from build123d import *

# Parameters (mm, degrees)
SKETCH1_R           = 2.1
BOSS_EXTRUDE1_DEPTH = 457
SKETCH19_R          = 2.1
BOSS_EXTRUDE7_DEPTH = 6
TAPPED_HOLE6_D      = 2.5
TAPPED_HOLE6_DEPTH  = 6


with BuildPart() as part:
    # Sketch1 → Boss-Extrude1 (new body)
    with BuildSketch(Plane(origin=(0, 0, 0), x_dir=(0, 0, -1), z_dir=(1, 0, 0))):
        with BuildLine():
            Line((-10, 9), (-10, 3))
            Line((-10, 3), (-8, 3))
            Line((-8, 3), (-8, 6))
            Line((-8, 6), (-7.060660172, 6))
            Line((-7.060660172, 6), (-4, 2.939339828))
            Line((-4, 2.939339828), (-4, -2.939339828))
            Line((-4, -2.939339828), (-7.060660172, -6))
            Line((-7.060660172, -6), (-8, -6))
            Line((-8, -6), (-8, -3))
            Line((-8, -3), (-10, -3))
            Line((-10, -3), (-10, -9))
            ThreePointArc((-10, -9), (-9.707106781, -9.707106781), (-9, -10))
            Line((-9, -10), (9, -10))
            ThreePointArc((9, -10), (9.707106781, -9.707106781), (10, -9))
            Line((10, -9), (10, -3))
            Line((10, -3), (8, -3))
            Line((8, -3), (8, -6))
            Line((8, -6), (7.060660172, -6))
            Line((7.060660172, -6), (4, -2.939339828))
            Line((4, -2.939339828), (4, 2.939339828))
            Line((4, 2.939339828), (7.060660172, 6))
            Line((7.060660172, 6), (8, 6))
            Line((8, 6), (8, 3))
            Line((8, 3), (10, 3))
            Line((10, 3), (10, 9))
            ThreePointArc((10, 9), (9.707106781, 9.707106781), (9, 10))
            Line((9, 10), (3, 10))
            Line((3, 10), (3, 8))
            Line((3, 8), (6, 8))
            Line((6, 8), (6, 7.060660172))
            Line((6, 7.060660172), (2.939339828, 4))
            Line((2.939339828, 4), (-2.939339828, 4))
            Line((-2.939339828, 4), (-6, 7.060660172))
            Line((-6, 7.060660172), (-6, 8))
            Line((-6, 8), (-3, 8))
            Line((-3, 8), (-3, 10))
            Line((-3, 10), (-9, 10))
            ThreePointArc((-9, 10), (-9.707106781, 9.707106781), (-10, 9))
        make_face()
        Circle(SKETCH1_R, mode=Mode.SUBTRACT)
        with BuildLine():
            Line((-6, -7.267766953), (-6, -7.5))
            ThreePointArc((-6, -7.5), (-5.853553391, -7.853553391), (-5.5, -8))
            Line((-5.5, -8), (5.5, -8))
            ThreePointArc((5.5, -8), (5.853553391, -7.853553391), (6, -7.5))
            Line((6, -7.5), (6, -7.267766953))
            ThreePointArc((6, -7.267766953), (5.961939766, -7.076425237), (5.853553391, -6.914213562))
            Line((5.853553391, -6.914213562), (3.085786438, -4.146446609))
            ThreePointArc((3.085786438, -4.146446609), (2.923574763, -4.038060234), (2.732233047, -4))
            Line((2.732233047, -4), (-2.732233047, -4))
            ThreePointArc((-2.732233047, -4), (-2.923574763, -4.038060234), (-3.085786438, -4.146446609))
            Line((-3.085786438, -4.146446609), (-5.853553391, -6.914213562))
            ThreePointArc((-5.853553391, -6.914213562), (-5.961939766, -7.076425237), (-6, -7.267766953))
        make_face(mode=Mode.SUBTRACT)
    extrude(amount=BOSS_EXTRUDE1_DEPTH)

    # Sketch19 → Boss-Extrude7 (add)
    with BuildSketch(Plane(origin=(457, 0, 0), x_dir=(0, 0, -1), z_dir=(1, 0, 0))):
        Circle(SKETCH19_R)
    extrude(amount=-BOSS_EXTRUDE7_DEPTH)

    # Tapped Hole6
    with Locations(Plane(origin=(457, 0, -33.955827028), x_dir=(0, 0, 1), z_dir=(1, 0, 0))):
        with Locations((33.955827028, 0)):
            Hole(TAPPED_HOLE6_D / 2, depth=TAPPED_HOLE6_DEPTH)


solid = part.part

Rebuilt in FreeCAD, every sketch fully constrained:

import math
import FreeCAD as App
import Part
import Sketcher

V = App.Vector
Q = App.Units.Quantity

doc = App.newDocument("Part")
params = doc.addObject("Spreadsheet::Sheet", "Params")
for row, (alias, value) in enumerate([
    ("sketch1_radius", "1 mm"),
    ("sketch1_diameter", "4.2 mm"),
    ("sketch1_radius2", "0.5 mm"),
    ("sketch1_width", "6 mm"),
    ("sketch1_width2", "3 mm"),
    ("pad1_length", "457 mm"),
    ("sketch2_diameter", "4.2 mm"),
    ("pad2_length", "6 mm"),
    ("sketch3_diameter", "2.5 mm"),
    ("hole_diameter", "2.5 mm"),
    ("hole_depth", "6 mm"),
], start=1):
    params.set(f"A{row}", alias)
    params.set(f"B{row}", "=" + value)
    params.setAlias(f"B{row}", alias)

body = doc.addObject("PartDesign::Body", "Body")

# Sketch on YZ plane
sketch1 = body.newObject("Sketcher::SketchObject", "Sketch")
sketch1.AttachmentSupport = (doc.getObject("YZ_Plane"), [""])
sketch1.MapMode = "FlatFace"
sketch1.addGeometry(Part.LineSegment(V(9, 10, 0), V(3, 10, 0)), False)
sketch1.addGeometry(Part.LineSegment(V(3, 10, 0), V(3, 8, 0)), False)
sketch1.addGeometry(Part.LineSegment(V(3, 8, 0), V(6, 8, 0)), False)
sketch1.addGeometry(Part.LineSegment(V(6, 8, 0), V(6, 7.06, 0)), False)
sketch1.addGeometry(Part.LineSegment(V(6, 7.06, 0), V(2.94, 4, 0)), False)
sketch1.addGeometry(Part.LineSegment(V(2.94, 4, 0), V(-2.94, 4, 0)), False)
sketch1.addGeometry(Part.LineSegment(V(-2.94, 4, 0), V(-6, 7.06, 0)), False)
sketch1.addGeometry(Part.LineSegment(V(-6, 7.06, 0), V(-6, 8, 0)), False)
sketch1.addGeometry(Part.LineSegment(V(-6, 8, 0), V(-3, 8, 0)), False)
sketch1.addGeometry(Part.LineSegment(V(-3, 8, 0), V(-3, 10, 0)), False)
sketch1.addGeometry(Part.LineSegment(V(-3, 10, 0), V(-9, 10, 0)), False)
sketch1.addGeometry(Part.ArcOfCircle(Part.Circle(V(-9, 9, 0), V(0, 0, 1), 1), math.radians(90), math.radians(180)), False)
sketch1.addGeometry(Part.LineSegment(V(-10, 9, 0), V(-10, -9, 0)), False)
sketch1.addGeometry(Part.ArcOfCircle(Part.Circle(V(-9, -9, 0), V(0, 0, 1), 1), math.radians(-180), math.radians(-90)), False)
sketch1.addGeometry(Part.LineSegment(V(-9, -10, 0), V(-3, -10, 0)), False)
sketch1.addGeometry(Part.LineSegment(V(-3, -10, 0), V(-3, -8, 0)), False)
sketch1.addGeometry(Part.LineSegment(V(-3, -8, 0), V(-6, -8, 0)), False)
sketch1.addGeometry(Part.LineSegment(V(-6, -8, 0), V(-6, -7.06, 0)), False)
sketch1.addGeometry(Part.LineSegment(V(-6, -7.06, 0), V(-2.94, -4, 0)), False)
sketch1.addGeometry(Part.LineSegment(V(-2.94, -4, 0), V(2.94, -4, 0)), False)
sketch1.addGeometry(Part.LineSegment(V(2.94, -4, 0), V(6, -7.06, 0)), False)
sketch1.addGeometry(Part.LineSegment(V(6, -7.06, 0), V(6, -8, 0)), False)
sketch1.addGeometry(Part.LineSegment(V(6, -8, 0), V(3, -8, 0)), False)
sketch1.addGeometry(Part.LineSegment(V(3, -8, 0), V(3, -10, 0)), False)
sketch1.addGeometry(Part.LineSegment(V(3, -10, 0), V(9, -10, 0)), False)
sketch1.addGeometry(Part.ArcOfCircle(Part.Circle(V(9, -9, 0), V(0, 0, 1), 1), math.radians(-90), math.radians(0)), False)
sketch1.addGeometry(Part.LineSegment(V(10, -9, 0), V(10, -3, 0)), False)
sketch1.addGeometry(Part.LineSegment(V(10, -3, 0), V(8, -3, 0)), False)
sketch1.addGeometry(Part.LineSegment(V(8, -3, 0), V(8, -6, 0)), False)
sketch1.addGeometry(Part.LineSegment(V(8, -6, 0), V(7.06, -6, 0)), False)
sketch1.addGeometry(Part.LineSegment(V(7.06, -6, 0), V(4, -2.94, 0)), False)
sketch1.addGeometry(Part.LineSegment(V(4, -2.94, 0), V(4, 2.94, 0)), False)
sketch1.addGeometry(Part.LineSegment(V(4, 2.94, 0), V(7.06, 6, 0)), False)
sketch1.addGeometry(Part.LineSegment(V(7.06, 6, 0), V(8, 6, 0)), False)
sketch1.addGeometry(Part.LineSegment(V(8, 6, 0), V(8, 3, 0)), False)
sketch1.addGeometry(Part.LineSegment(V(8, 3, 0), V(10, 3, 0)), False)
sketch1.addGeometry(Part.LineSegment(V(10, 3, 0), V(10, 9, 0)), False)
sketch1.addGeometry(Part.ArcOfCircle(Part.Circle(V(9, 9, 0), V(0, 0, 1), 1), math.radians(0), math.radians(90)), False)
sketch1.addGeometry(Part.LineSegment(V(-7.5, 6, 0), V(-7.27, 6, 0)), False)
sketch1.addGeometry(Part.ArcOfCircle(Part.Circle(V(-7.27, 5.5, 0), V(0, 0, 1), 0.5), math.radians(45), math.radians(90)), False)
sketch1.addGeometry(Part.LineSegment(V(-6.91, 5.85, 0), V(-4.15, 3.09, 0)), False)
sketch1.addGeometry(Part.ArcOfCircle(Part.Circle(V(-4.5, 2.73, 0), V(0, 0, 1), 0.5), math.radians(0), math.radians(45)), False)
sketch1.addGeometry(Part.LineSegment(V(-4, 2.73, 0), V(-4, -2.73, 0)), False)
sketch1.addGeometry(Part.ArcOfCircle(Part.Circle(V(-4.5, -2.73, 0), V(0, 0, 1), 0.5), math.radians(-45), math.radians(0)), False)
sketch1.addGeometry(Part.LineSegment(V(-4.15, -3.09, 0), V(-6.91, -5.85, 0)), False)
sketch1.addGeometry(Part.ArcOfCircle(Part.Circle(V(-7.27, -5.5, 0), V(0, 0, 1), 0.5), math.radians(-90), math.radians(-45)), False)
sketch1.addGeometry(Part.LineSegment(V(-7.27, -6, 0), V(-7.5, -6, 0)), False)
sketch1.addGeometry(Part.ArcOfCircle(Part.Circle(V(-7.5, -5.5, 0), V(0, 0, 1), 0.5), math.radians(180), math.radians(270)), False)
sketch1.addGeometry(Part.LineSegment(V(-8, -5.5, 0), V(-8, 5.5, 0)), False)
sketch1.addGeometry(Part.ArcOfCircle(Part.Circle(V(-7.5, 5.5, 0), V(0, 0, 1), 0.5), math.radians(90), math.radians(180)), False)
sketch1.addGeometry(Part.Circle(V(0, 0, 0), V(0, 0, 1), 2.1), False)
sketch1.addConstraint(Sketcher.Constraint("Coincident", 0, 2, 1, 1))
sketch1.addConstraint(Sketcher.Constraint("Coincident", 1, 2, 2, 1))
sketch1.addConstraint(Sketcher.Constraint("Coincident", 2, 2, 3, 1))
sketch1.addConstraint(Sketcher.Constraint("Coincident", 3, 2, 4, 1))
sketch1.addConstraint(Sketcher.Constraint("Coincident", 4, 2, 5, 1))
sketch1.addConstraint(Sketcher.Constraint("Coincident", 5, 2, 6, 1))
sketch1.addConstraint(Sketcher.Constraint("Coincident", 6, 2, 7, 1))
sketch1.addConstraint(Sketcher.Constraint("Coincident", 7, 2, 8, 1))
sketch1.addConstraint(Sketcher.Constraint("Coincident", 8, 2, 9, 1))
sketch1.addConstraint(Sketcher.Constraint("Coincident", 9, 2, 10, 1))
sketch1.addConstraint(Sketcher.Constraint("Tangent", 10, 2, 11, 1))
sketch1.addConstraint(Sketcher.Constraint("Tangent", 11, 2, 12, 1))
sketch1.addConstraint(Sketcher.Constraint("Tangent", 12, 2, 13, 1))
sketch1.addConstraint(Sketcher.Constraint("Tangent", 13, 2, 14, 1))
sketch1.addConstraint(Sketcher.Constraint("Coincident", 14, 2, 15, 1))
sketch1.addConstraint(Sketcher.Constraint("Coincident", 15, 2, 16, 1))
sketch1.addConstraint(Sketcher.Constraint("Coincident", 16, 2, 17, 1))
sketch1.addConstraint(Sketcher.Constraint("Coincident", 17, 2, 18, 1))
sketch1.addConstraint(Sketcher.Constraint("Coincident", 18, 2, 19, 1))
sketch1.addConstraint(Sketcher.Constraint("Coincident", 19, 2, 20, 1))
sketch1.addConstraint(Sketcher.Constraint("Coincident", 20, 2, 21, 1))
sketch1.addConstraint(Sketcher.Constraint("Coincident", 21, 2, 22, 1))
sketch1.addConstraint(Sketcher.Constraint("Coincident", 22, 2, 23, 1))
sketch1.addConstraint(Sketcher.Constraint("Coincident", 23, 2, 24, 1))
sketch1.addConstraint(Sketcher.Constraint("Tangent", 24, 2, 25, 1))
sketch1.addConstraint(Sketcher.Constraint("Tangent", 25, 2, 26, 1))
sketch1.addConstraint(Sketcher.Constraint("Coincident", 26, 2, 27, 1))
sketch1.addConstraint(Sketcher.Constraint("Coincident", 27, 2, 28, 1))
sketch1.addConstraint(Sketcher.Constraint("Coincident", 28, 2, 29, 1))
sketch1.addConstraint(Sketcher.Constraint("Coincident", 29, 2, 30, 1))
sketch1.addConstraint(Sketcher.Constraint("Coincident", 30, 2, 31, 1))
sketch1.addConstraint(Sketcher.Constraint("Coincident", 31, 2, 32, 1))
sketch1.addConstraint(Sketcher.Constraint("Coincident", 32, 2, 33, 1))
sketch1.addConstraint(Sketcher.Constraint("Coincident", 33, 2, 34, 1))
sketch1.addConstraint(Sketcher.Constraint("Coincident", 34, 2, 35, 1))
sketch1.addConstraint(Sketcher.Constraint("Coincident", 35, 2, 36, 1))
sketch1.addConstraint(Sketcher.Constraint("Tangent", 36, 2, 37, 1))
sketch1.addConstraint(Sketcher.Constraint("Tangent", 37, 2, 0, 1))
sketch1.addConstraint(Sketcher.Constraint("Tangent", 38, 2, 39, 2))
sketch1.addConstraint(Sketcher.Constraint("Tangent", 39, 1, 40, 1))
sketch1.addConstraint(Sketcher.Constraint("Tangent", 40, 2, 41, 2))
sketch1.addConstraint(Sketcher.Constraint("Tangent", 41, 1, 42, 1))
sketch1.addConstraint(Sketcher.Constraint("Tangent", 42, 2, 43, 2))
sketch1.addConstraint(Sketcher.Constraint("Tangent", 43, 1, 44, 1))
sketch1.addConstraint(Sketcher.Constraint("Tangent", 44, 2, 45, 2))
sketch1.addConstraint(Sketcher.Constraint("Tangent", 45, 1, 46, 1))
sketch1.addConstraint(Sketcher.Constraint("Tangent", 46, 2, 47, 2))
sketch1.addConstraint(Sketcher.Constraint("Tangent", 47, 1, 48, 1))
sketch1.addConstraint(Sketcher.Constraint("Tangent", 48, 2, 49, 2))
sketch1.addConstraint(Sketcher.Constraint("Tangent", 49, 1, 38, 1))
sketch1.addConstraint(Sketcher.Constraint("Horizontal", 0))
sketch1.addConstraint(Sketcher.Constraint("Vertical", 1))
sketch1.addConstraint(Sketcher.Constraint("Horizontal", 2))
sketch1.addConstraint(Sketcher.Constraint("Vertical", 3))
sketch1.addConstraint(Sketcher.Constraint("Horizontal", 5))
sketch1.addConstraint(Sketcher.Constraint("Vertical", 7))
sketch1.addConstraint(Sketcher.Constraint("Horizontal", 8))
sketch1.addConstraint(Sketcher.Constraint("Vertical", 9))
sketch1.addConstraint(Sketcher.Constraint("Horizontal", 10))
sketch1.addConstraint(Sketcher.Constraint("Vertical", 12))
sketch1.addConstraint(Sketcher.Constraint("Horizontal", 14))
sketch1.addConstraint(Sketcher.Constraint("Vertical", 15))
sketch1.addConstraint(Sketcher.Constraint("Horizontal", 16))
sketch1.addConstraint(Sketcher.Constraint("Vertical", 17))
sketch1.addConstraint(Sketcher.Constraint("Horizontal", 19))
sketch1.addConstraint(Sketcher.Constraint("Vertical", 21))
sketch1.addConstraint(Sketcher.Constraint("Horizontal", 22))
sketch1.addConstraint(Sketcher.Constraint("Vertical", 23))
sketch1.addConstraint(Sketcher.Constraint("Horizontal", 24))
sketch1.addConstraint(Sketcher.Constraint("Vertical", 26))
sketch1.addConstraint(Sketcher.Constraint("Horizontal", 27))
sketch1.addConstraint(Sketcher.Constraint("Vertical", 28))
sketch1.addConstraint(Sketcher.Constraint("Horizontal", 29))
sketch1.addConstraint(Sketcher.Constraint("Vertical", 31))
sketch1.addConstraint(Sketcher.Constraint("Horizontal", 33))
sketch1.addConstraint(Sketcher.Constraint("Vertical", 34))
sketch1.addConstraint(Sketcher.Constraint("Horizontal", 35))
sketch1.addConstraint(Sketcher.Constraint("Vertical", 36))
sketch1.addConstraint(Sketcher.Constraint("Horizontal", 38))
sketch1.addConstraint(Sketcher.Constraint("Vertical", 42))
sketch1.addConstraint(Sketcher.Constraint("Horizontal", 46))
sketch1.addConstraint(Sketcher.Constraint("Vertical", 48))
sketch1.addConstraint(Sketcher.Constraint("Coincident", 50, 3, -1, 1))
sketch1.addConstraint(Sketcher.Constraint("Equal", 11, 13))
sketch1.addConstraint(Sketcher.Constraint("Equal", 13, 25))
sketch1.addConstraint(Sketcher.Constraint("Equal", 25, 37))
sketch1.addConstraint(Sketcher.Constraint("Equal", 39, 41))
sketch1.addConstraint(Sketcher.Constraint("Equal", 41, 43))
sketch1.addConstraint(Sketcher.Constraint("Equal", 43, 45))
sketch1.addConstraint(Sketcher.Constraint("Equal", 45, 47))
sketch1.addConstraint(Sketcher.Constraint("Equal", 47, 49))
sketch1.addConstraint(Sketcher.Constraint("Symmetric", 11, 3, 25, 3, -1, 1))
sketch1.addConstraint(Sketcher.Constraint("Symmetric", 13, 3, 37, 3, -1, 1))
sketch1.addConstraint(Sketcher.Constraint("Symmetric", 1, 2, 15, 2, -1, 1))
sketch1.addConstraint(Sketcher.Constraint("Symmetric", 3, 2, 17, 2, -1, 1))
sketch1.addConstraint(Sketcher.Constraint("Symmetric", 4, 2, 18, 2, -1, 1))
sketch1.addConstraint(Sketcher.Constraint("Symmetric", 6, 2, 20, 2, -1, 1))
sketch1.addConstraint(Sketcher.Constraint("Symmetric", 8, 2, 22, 2, -1, 1))
sketch1.addConstraint(Sketcher.Constraint("Symmetric", 3, 2, 6, 2, -2))
sketch1.addConstraint(Sketcher.Constraint("Symmetric", 1, 2, 8, 2, -2))
sketch1.addConstraint(Sketcher.Constraint("Symmetric", 39, 3, 45, 3, -1))
sketch1.addConstraint(Sketcher.Constraint("Symmetric", 29, 2, 32, 2, -1))
sketch1.addConstraint(Sketcher.Constraint("Symmetric", 27, 2, 34, 2, -1))
sketch1.addConstraint(Sketcher.Constraint("Perpendicular", 4, 6))
sketch1.addConstraint(Sketcher.Constraint("Perpendicular", 18, 20))
sketch1.addConstraint(Sketcher.Constraint("Parallel", 20, 30))
sketch1.addConstraint(Sketcher.Constraint("Perpendicular", 30, 32))
sketch1.addConstraint(Sketcher.Constraint("Perpendicular", 32, 40))
sketch1.addConstraint(Sketcher.Constraint("Perpendicular", 40, 44))
sketch1.addConstraint(Sketcher.Constraint("Horizontal", 13, 3, 25, 3))
sketch1.addConstraint(Sketcher.Constraint("Horizontal", 33, 2, 38, 2))
sketch1.addConstraint(Sketcher.Constraint("Vertical", 5, 2, 18, 2))
sketch1.addConstraint(Sketcher.Constraint("Equal", 35, 1))
sketch1.addConstraint(Sketcher.Constraint("Equal", 33, 3))
sketch1.addConstraint(Sketcher.Constraint("Equal", 24, 26))
sketch1.addConstraint(Sketcher.Constraint("Equal", 22, 28))
sketch1.addConstraint(Sketcher.Constraint("Equal", 19, 31))
sketch1.addConstraint(Sketcher.Constraint("Equal", 20, 30))
sketch1.addConstraint(Sketcher.Constraint("Radius", 11, Q("1 mm")))
sketch1.addConstraint(Sketcher.Constraint("Diameter", 50, Q("4.2 mm")))
sketch1.addConstraint(Sketcher.Constraint("Radius", 39, Q("0.5 mm")))
sketch1.addConstraint(Sketcher.Constraint("DistanceX", 0, 2, 0, 1, Q("6 mm")))
sketch1.addConstraint(Sketcher.Constraint("DistanceX", 2, 1, 2, 2, Q("3 mm")))
sketch1.addConstraint(Sketcher.Constraint("DistanceX", 27, 2, 27, 1, Q("2 mm")))
sketch1.addConstraint(Sketcher.Constraint("DistanceY", 12, 2, 12, 1, Q("18 mm")))
sketch1.addConstraint(Sketcher.Constraint("DistanceY", -1, 1, 4, 2, Q("4 mm")))
sketch1.addConstraint(Sketcher.Constraint("DistanceX", 41, 1, -1, 1, Q("4 mm")))
sketch1.addConstraint(Sketcher.Constraint("DistanceX", 47, 1, -1, 1, Q("8 mm")))
sketch1.addConstraint(Sketcher.Constraint("DistanceX", 5, 2, 5, 1, Q("5.87868 mm")))
sketch1.addConstraint(Sketcher.Constraint("DistanceX", 38, 1, 38, 2, Q("0.232233 mm")))
sketch1.setExpression("Constraints[118]", "Params.sketch1_radius")
sketch1.setExpression("Constraints[119]", "Params.sketch1_diameter")
sketch1.setExpression("Constraints[120]", "Params.sketch1_radius2")
sketch1.setExpression("Constraints[121]", "Params.sketch1_width")
sketch1.setExpression("Constraints[122]", "Params.sketch1_width2")
pad1 = body.newObject("PartDesign::Pad", "Pad")
pad1.Profile = sketch1
pad1.setExpression("Length", "Params.pad1_length")

# Sketch on YZ plane
sketch2 = body.newObject("Sketcher::SketchObject", "Sketch001")
sketch2.AttachmentSupport = (doc.getObject("YZ_Plane"), [""])
sketch2.MapMode = "FlatFace"
sketch2.AttachmentOffset = App.Placement(V(0, 0, 457), App.Rotation())
sketch2.addGeometry(Part.Circle(V(0, 0, 0), V(0, 0, 1), 2.1), False)
sketch2.addConstraint(Sketcher.Constraint("Coincident", 0, 3, -1, 1))
sketch2.addConstraint(Sketcher.Constraint("Diameter", 0, Q("4.2 mm")))
sketch2.setExpression("Constraints[1]", "Params.sketch2_diameter")
pad2 = body.newObject("PartDesign::Pad", "Pad001")
pad2.Profile = sketch2
pad2.setExpression("Length", "Params.pad2_length")
pad2.Reversed = True

# Sketch on YZ plane
sketch3 = body.newObject("Sketcher::SketchObject", "Sketch002")
sketch3.AttachmentSupport = (doc.getObject("YZ_Plane"), [""])
sketch3.MapMode = "FlatFace"
sketch3.AttachmentOffset = App.Placement(V(0, 0, 457), App.Rotation())
sketch3.addGeometry(Part.Circle(V(0, 0, 0), V(0, 0, 1), 1.2), False)
sketch3.addConstraint(Sketcher.Constraint("Coincident", 0, 3, -1, 1))
sketch3.addConstraint(Sketcher.Constraint("Diameter", 0, Q("2.5 mm")))
sketch3.setExpression("Constraints[1]", "Params.sketch3_diameter")
doc.recompute()
hole = body.newObject("PartDesign::Hole", "Hole")
hole.Profile = sketch3
hole.ThreadType = "None"
hole.setExpression("Diameter", "Params.hole_diameter")
hole.DepthType = "Dimension"
hole.setExpression("Depth", "Params.hole_depth")
hole.DrillPoint = "Flat"

doc.recompute()
